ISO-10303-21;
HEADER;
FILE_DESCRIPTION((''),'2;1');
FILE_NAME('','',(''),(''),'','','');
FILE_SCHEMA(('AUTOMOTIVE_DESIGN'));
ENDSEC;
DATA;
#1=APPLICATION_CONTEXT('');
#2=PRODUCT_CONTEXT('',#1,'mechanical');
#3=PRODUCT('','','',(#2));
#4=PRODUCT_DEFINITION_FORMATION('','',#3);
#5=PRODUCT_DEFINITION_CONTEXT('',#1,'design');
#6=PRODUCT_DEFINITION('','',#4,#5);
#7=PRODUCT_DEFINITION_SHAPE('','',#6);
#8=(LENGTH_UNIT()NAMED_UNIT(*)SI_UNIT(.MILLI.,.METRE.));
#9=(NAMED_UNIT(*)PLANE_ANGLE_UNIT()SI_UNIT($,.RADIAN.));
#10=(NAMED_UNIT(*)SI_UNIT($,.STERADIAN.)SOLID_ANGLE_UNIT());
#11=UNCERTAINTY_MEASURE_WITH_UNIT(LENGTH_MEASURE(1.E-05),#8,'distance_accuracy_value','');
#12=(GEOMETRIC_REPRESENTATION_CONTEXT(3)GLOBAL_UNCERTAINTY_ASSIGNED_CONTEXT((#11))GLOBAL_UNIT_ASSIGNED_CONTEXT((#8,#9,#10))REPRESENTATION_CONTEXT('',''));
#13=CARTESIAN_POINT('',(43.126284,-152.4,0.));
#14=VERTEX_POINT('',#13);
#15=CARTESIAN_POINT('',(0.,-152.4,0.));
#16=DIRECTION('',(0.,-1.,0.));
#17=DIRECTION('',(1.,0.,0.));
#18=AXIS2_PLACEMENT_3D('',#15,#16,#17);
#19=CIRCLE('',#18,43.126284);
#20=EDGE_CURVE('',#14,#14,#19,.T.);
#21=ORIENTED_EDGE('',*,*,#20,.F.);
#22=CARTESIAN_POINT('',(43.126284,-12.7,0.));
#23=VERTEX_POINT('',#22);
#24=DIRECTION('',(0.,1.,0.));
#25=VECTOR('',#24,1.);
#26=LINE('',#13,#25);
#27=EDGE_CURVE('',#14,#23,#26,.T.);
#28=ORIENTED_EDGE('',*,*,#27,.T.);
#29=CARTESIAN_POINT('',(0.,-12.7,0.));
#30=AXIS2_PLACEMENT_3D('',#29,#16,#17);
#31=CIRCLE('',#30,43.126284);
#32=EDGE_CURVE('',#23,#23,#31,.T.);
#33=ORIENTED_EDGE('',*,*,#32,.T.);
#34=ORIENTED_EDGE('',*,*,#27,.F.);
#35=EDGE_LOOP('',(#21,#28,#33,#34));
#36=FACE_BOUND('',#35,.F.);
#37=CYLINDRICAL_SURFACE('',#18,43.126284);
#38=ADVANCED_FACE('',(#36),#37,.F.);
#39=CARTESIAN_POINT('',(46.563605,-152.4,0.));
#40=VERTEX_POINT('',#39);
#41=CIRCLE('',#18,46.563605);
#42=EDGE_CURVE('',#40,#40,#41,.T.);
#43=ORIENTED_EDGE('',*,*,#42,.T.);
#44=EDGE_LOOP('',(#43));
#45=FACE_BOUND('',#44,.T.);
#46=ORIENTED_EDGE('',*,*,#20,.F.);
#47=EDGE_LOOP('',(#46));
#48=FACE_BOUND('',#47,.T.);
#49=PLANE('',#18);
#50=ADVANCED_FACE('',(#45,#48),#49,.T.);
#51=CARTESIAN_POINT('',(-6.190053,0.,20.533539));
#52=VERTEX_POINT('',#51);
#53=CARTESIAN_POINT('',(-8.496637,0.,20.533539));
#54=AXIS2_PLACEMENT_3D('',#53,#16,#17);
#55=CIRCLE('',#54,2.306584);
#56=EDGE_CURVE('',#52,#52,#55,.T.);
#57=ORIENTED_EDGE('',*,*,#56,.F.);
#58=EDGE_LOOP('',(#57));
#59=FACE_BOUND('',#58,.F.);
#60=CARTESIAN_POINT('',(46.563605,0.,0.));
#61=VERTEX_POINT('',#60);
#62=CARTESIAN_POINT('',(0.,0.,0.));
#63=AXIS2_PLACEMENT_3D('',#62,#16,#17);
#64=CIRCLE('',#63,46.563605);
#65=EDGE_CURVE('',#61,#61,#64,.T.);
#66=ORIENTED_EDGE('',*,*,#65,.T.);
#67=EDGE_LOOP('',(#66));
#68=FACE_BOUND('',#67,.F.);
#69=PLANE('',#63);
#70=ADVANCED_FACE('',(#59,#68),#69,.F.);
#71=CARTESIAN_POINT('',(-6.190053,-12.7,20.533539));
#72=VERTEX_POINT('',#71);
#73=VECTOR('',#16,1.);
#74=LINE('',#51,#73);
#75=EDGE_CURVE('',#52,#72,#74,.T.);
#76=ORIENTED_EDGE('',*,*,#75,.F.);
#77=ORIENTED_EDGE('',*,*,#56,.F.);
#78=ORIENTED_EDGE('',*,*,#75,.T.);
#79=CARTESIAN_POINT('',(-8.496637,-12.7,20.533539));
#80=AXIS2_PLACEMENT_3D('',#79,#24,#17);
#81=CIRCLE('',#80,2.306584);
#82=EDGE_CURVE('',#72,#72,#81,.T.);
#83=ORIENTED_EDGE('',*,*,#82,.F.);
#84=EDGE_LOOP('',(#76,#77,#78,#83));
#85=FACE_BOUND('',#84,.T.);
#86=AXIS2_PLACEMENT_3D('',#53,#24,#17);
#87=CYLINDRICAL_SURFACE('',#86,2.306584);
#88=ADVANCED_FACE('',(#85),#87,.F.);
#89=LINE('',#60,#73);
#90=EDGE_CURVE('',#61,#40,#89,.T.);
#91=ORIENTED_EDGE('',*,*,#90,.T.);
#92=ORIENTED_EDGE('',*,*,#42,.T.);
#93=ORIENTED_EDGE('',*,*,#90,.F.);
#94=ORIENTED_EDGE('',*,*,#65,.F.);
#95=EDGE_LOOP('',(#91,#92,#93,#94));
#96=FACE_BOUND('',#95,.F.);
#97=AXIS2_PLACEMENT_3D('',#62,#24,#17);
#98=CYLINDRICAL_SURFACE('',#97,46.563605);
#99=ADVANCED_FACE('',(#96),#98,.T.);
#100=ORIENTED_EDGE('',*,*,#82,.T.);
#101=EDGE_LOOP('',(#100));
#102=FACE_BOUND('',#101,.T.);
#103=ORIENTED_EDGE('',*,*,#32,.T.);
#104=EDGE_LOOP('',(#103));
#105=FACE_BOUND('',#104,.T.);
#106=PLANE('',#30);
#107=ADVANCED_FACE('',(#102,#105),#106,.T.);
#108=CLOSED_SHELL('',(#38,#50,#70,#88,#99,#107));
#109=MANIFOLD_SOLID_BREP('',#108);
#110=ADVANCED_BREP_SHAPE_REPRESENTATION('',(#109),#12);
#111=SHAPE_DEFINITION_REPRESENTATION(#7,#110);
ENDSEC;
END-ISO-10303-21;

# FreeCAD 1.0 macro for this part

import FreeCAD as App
import Part
import Sketcher

V = App.Vector
Q = App.Units.Quantity

doc = App.newDocument("Part")
body = doc.addObject("PartDesign::Body", "Body")

sketch1 = doc.addObject("Sketcher::SketchObject", "Sketch")
body.addObject(sketch1)
sketch1.AttachmentSupport = (doc.XZ_Plane, [""])
sketch1.MapMode = "FlatFace"
sketch1.addGeometry(Part.Circle(V(0, 0, 0), V(0, 0, 1), 46.6), False)
sketch1.addGeometry(Part.Circle(V(-8.5, 20.5, 0), V(0, 0, 1), 2.3), False)
sketch1.addConstraint(Sketcher.Constraint("Coincident", 0, 3, -1, 1))
sketch1.addConstraint(Sketcher.Constraint("Diameter", 0, Q("93.12721 mm")))
sketch1.addConstraint(Sketcher.Constraint("Diameter", 1, Q("4.613168 mm")))
sketch1.addConstraint(Sketcher.Constraint("DistanceY", -1, 1, 1, 3, Q("20.533539 mm")))
sketch1.addConstraint(Sketcher.Constraint("DistanceX", 1, 3, -1, 1, Q("8.496637 mm")))
pad1 = doc.addObject("PartDesign::Pad", "Pad")
body.addObject(pad1)
pad1.Profile = sketch1
pad1.Length = Q("6 in")

sketch2 = doc.addObject("Sketcher::SketchObject", "Sketch001")
body.addObject(sketch2)
sketch2.AttachmentSupport = (doc.XZ_Plane, [""])
sketch2.MapMode = "FlatFace"
sketch2.AttachmentOffset = App.Placement(V(0, 0, 6 * 25.4), App.Rotation())
sketch2.addGeometry(Part.Circle(V(0, 0, 0), V(0, 0, 1), 43), False)
sketch2.addConstraint(Sketcher.Constraint("Coincident", 0, 3, -1, 1))
sketch2.addConstraint(Sketcher.Constraint("Diameter", 0, Q("86.252568 mm")))
pocket1 = doc.addObject("PartDesign::Pocket", "Pocket")
body.addObject(pocket1)
pocket1.Profile = sketch2
pocket1.Length = Q("5.5 in")

doc.recompute()
